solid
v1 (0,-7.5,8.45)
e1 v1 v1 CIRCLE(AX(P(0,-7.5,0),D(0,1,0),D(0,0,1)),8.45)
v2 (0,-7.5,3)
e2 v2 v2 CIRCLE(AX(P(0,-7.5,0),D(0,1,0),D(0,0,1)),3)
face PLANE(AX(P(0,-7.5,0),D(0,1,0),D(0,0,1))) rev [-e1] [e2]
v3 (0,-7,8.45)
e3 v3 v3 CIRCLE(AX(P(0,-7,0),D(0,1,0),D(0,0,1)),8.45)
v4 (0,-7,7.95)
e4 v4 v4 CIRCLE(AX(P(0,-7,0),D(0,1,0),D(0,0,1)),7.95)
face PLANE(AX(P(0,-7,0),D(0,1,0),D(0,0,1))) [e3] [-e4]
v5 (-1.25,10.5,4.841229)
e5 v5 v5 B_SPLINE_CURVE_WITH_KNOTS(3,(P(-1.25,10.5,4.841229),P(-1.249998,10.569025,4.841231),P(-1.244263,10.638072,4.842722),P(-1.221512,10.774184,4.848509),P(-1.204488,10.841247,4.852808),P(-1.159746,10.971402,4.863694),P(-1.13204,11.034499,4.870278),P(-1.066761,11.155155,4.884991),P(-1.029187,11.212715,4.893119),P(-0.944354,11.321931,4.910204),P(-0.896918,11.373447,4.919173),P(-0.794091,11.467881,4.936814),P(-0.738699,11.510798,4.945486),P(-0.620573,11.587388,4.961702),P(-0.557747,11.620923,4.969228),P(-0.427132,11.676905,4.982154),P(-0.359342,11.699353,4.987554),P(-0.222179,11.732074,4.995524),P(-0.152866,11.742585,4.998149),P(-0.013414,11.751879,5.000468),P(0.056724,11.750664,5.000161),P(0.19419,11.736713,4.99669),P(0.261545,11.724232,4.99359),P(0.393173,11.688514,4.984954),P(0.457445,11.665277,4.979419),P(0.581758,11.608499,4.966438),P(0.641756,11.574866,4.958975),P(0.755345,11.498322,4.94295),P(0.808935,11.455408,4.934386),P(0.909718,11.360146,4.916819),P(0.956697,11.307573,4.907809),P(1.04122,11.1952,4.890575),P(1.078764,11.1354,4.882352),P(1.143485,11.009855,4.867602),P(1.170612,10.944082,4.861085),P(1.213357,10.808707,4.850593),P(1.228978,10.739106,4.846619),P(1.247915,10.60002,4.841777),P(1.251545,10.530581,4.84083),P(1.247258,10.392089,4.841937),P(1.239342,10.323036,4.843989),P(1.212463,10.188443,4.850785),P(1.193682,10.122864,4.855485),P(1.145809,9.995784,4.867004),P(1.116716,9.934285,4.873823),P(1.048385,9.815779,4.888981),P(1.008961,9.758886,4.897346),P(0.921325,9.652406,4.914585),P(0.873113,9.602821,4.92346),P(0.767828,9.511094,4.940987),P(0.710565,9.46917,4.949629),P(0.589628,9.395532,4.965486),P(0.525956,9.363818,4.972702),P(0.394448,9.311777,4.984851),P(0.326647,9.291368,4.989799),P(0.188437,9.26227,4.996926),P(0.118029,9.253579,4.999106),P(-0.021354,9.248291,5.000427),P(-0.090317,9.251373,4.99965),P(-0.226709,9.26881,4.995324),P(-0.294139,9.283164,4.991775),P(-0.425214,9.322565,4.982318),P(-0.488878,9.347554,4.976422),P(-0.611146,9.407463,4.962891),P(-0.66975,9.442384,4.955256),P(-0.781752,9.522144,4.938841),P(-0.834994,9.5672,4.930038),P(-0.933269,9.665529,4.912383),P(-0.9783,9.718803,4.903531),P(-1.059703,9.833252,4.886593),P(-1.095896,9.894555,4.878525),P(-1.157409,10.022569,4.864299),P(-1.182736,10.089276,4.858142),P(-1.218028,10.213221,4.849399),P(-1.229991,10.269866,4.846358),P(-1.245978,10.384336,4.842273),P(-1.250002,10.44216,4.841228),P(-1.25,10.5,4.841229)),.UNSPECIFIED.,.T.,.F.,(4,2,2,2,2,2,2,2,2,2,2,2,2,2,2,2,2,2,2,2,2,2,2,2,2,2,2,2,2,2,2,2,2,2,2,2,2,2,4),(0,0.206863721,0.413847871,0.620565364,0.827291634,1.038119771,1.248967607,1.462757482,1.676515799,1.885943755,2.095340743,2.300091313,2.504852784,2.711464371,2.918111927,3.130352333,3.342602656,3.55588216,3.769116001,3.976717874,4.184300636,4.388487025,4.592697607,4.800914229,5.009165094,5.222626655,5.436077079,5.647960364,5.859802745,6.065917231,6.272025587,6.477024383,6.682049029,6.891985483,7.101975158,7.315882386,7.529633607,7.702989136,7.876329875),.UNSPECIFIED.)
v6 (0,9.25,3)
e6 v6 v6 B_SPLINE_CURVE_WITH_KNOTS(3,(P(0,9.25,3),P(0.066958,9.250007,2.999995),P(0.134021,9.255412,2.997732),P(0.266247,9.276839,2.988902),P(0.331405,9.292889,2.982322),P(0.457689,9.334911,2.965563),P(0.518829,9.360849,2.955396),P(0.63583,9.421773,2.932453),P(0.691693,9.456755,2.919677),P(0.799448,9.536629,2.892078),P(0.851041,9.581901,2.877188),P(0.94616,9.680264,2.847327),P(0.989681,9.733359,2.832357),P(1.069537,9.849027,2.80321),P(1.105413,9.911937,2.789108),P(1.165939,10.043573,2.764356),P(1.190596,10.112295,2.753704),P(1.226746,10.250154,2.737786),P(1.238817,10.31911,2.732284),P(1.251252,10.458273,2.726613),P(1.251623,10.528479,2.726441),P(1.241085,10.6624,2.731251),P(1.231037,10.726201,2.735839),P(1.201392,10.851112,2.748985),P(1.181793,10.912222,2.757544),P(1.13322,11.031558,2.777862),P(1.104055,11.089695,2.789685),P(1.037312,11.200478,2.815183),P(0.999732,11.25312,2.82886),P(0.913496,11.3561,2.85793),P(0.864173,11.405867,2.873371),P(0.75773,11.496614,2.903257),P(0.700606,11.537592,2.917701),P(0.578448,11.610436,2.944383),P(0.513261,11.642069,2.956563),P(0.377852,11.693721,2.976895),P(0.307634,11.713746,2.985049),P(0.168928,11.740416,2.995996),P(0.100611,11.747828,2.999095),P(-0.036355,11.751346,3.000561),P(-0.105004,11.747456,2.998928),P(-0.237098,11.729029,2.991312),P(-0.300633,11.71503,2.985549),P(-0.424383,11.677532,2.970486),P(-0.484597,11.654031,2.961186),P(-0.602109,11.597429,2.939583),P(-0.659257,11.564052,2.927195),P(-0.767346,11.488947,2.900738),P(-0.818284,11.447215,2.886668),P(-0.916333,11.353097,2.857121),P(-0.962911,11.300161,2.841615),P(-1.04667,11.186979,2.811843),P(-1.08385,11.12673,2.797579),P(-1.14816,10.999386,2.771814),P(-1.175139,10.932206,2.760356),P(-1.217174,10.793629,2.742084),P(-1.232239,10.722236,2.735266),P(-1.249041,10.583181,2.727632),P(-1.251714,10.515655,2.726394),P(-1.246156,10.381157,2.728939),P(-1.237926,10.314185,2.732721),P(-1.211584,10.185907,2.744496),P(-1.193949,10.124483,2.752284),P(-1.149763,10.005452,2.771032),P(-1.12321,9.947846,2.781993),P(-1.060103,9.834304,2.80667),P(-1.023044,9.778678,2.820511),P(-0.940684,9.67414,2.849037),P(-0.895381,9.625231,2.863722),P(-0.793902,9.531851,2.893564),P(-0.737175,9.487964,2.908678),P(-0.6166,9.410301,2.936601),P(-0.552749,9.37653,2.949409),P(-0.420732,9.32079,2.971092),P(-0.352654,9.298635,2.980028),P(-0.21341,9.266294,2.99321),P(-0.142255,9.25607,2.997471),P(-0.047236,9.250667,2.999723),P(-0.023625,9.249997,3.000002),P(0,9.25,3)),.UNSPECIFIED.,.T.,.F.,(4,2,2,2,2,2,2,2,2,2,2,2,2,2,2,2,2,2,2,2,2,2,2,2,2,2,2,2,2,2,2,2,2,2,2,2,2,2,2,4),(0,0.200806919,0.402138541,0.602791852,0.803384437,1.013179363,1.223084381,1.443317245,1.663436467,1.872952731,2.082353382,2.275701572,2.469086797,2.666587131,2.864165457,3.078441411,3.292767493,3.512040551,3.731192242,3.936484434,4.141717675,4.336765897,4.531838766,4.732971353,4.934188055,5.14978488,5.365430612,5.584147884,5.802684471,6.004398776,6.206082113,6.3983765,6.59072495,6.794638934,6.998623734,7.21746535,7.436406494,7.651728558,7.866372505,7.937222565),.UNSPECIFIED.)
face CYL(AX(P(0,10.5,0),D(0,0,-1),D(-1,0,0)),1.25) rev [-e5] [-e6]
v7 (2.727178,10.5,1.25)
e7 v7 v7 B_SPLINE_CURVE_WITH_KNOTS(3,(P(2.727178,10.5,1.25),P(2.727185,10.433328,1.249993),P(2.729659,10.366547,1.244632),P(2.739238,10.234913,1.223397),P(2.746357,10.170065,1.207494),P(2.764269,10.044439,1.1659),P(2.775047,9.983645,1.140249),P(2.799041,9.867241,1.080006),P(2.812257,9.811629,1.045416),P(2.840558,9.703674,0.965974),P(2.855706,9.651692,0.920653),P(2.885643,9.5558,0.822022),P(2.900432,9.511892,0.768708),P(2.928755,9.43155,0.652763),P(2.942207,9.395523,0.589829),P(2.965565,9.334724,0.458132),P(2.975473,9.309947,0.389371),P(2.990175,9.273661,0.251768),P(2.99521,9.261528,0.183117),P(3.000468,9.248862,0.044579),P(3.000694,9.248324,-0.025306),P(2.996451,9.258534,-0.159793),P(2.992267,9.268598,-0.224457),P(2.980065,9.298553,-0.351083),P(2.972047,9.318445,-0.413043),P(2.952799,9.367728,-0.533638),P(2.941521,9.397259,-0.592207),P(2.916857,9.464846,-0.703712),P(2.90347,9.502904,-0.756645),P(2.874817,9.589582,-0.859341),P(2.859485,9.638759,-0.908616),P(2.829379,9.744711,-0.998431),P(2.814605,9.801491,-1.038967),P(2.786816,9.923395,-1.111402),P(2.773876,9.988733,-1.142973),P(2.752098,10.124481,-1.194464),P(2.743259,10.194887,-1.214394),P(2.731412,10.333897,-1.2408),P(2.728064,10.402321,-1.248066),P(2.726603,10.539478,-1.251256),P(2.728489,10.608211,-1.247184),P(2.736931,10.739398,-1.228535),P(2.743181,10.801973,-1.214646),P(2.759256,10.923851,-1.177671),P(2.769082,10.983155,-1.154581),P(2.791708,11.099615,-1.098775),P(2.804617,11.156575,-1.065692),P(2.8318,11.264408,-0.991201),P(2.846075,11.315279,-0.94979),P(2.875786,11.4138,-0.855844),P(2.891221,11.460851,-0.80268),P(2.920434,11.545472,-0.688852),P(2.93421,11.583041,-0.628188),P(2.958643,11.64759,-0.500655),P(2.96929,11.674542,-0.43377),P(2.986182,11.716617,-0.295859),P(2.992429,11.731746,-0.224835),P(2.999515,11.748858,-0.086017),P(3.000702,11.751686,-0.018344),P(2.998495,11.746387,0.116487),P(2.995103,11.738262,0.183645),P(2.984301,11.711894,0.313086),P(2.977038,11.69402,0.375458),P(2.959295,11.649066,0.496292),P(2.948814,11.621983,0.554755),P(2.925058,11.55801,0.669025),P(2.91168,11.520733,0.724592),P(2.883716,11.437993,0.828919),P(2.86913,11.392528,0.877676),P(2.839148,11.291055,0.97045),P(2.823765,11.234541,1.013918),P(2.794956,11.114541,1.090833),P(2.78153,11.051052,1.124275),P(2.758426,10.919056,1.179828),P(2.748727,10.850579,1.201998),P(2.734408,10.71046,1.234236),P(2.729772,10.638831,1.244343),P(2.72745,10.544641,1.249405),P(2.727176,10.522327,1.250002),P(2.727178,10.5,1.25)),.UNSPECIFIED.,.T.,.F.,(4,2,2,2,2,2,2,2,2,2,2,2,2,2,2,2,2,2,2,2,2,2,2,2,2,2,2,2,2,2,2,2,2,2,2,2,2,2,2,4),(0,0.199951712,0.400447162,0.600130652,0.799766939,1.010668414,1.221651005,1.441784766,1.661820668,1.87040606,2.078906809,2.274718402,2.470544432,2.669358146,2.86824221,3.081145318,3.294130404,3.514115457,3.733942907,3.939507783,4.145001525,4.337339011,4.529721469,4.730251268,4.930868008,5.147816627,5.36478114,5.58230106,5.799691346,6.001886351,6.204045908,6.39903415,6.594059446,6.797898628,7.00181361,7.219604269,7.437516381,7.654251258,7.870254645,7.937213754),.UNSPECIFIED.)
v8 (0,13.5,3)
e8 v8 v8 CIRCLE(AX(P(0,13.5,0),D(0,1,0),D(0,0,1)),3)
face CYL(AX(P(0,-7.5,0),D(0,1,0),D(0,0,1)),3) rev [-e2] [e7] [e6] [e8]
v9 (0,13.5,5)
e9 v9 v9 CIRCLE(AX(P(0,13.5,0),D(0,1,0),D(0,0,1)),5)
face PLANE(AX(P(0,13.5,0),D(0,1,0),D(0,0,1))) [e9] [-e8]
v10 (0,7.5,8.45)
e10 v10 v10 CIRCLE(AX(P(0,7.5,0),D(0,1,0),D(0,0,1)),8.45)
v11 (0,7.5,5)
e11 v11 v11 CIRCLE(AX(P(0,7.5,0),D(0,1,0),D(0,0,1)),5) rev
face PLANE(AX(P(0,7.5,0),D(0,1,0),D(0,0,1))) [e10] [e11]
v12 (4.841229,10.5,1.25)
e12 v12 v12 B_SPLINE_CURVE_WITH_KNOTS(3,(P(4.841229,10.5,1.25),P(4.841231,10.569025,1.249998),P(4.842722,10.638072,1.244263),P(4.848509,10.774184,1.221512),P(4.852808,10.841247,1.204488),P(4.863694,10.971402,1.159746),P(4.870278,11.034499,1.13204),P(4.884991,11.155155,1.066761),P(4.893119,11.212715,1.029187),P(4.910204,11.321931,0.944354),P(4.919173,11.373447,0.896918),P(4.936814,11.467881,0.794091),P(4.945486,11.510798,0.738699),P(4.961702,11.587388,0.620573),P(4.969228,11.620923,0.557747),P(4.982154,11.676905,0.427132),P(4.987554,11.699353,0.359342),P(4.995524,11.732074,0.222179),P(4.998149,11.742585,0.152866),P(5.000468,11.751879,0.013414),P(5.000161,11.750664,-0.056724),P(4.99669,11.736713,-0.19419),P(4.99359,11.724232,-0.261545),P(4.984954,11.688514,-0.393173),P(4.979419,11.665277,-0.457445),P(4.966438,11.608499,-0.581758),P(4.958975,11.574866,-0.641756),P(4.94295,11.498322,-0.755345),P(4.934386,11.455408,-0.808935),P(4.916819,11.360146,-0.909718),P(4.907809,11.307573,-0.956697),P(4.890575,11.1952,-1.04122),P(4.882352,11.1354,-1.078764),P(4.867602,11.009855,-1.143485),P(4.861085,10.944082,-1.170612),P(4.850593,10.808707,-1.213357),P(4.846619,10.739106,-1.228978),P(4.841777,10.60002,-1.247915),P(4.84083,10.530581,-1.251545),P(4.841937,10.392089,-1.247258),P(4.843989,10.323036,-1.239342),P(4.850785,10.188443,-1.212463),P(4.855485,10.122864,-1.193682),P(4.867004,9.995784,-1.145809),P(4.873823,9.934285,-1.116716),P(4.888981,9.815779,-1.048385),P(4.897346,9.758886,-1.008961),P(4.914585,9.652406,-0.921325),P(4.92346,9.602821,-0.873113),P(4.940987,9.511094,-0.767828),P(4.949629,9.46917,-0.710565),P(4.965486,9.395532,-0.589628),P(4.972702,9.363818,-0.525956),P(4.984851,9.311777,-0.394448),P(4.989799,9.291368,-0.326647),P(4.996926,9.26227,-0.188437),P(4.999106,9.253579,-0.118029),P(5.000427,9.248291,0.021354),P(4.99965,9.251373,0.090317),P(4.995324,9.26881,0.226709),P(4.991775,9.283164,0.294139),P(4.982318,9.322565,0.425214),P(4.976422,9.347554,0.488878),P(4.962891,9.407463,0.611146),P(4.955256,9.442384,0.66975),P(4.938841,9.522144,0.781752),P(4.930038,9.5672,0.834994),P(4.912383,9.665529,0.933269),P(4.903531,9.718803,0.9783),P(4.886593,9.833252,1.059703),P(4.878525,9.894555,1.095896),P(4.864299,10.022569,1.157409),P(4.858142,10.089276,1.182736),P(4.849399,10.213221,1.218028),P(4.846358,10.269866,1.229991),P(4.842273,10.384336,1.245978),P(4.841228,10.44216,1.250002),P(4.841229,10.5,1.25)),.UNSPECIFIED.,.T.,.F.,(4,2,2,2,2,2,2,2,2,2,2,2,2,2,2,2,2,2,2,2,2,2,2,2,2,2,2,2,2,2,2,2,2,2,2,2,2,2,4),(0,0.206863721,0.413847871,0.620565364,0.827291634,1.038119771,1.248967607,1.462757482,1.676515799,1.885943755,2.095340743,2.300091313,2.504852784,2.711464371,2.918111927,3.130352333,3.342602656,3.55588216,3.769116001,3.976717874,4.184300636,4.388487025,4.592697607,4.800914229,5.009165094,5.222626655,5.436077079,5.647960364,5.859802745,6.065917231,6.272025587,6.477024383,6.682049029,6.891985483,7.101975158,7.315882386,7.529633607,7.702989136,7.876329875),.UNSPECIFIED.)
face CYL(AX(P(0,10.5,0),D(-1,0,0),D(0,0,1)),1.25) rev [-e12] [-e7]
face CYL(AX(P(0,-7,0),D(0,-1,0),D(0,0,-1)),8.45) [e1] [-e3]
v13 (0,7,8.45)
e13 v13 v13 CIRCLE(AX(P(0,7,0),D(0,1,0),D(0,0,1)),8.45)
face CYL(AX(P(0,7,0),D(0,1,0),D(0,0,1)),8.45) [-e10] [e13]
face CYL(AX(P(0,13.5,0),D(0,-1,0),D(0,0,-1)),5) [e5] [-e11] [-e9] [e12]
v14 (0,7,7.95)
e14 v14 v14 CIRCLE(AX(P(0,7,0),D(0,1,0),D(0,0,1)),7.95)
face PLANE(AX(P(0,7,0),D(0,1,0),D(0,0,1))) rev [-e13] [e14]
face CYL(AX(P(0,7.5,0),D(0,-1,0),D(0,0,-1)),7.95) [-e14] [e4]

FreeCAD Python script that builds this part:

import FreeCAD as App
import Part
import Sketcher
Q = App.Units.Quantity


def add_polygon(sketch, points):
    """Adds a closed chain of lines whose ends are joined by coincident constraints."""
    first, n = sketch.GeometryCount, len(points)
    for a, b in zip(points, points[1:] + points[:1]):
        sketch.addGeometry(Part.LineSegment(App.Vector(*a, 0), App.Vector(*b, 0)), False)
    for i in range(n):
        sketch.addConstraint(Sketcher.Constraint("Coincident", first + i, 2, first + (i + 1) % n, 1))

doc = App.newDocument("Part")
body = doc.addObject("PartDesign::Body", "Body")

sketch1 = body.newObject("Sketcher::SketchObject", "Sketch")
sketch1.AttachmentSupport = (doc.getObject("XZ_Plane"), [""])
sketch1.MapMode = "FlatFace"
sketch1.addGeometry(Part.Circle(App.Vector(0, 0, 0), App.Vector(0, 0, 1), 8), False)
sketch1.addConstraint(Sketcher.Constraint("Coincident", 0, 3, -1, 1))
sketch1.addConstraint(Sketcher.Constraint("Diameter", 0, Q("15.9 mm")))
pad1 = body.newObject("PartDesign::Pad", "Pad")
pad1.Profile = sketch1
pad1.Length = 15
pad1.Midplane = True

sketch2 = body.newObject("Sketcher::SketchObject", "Sketch001")
sketch2.AttachmentSupport = (doc.getObject("XZ_Plane"), [""])
sketch2.MapMode = "FlatFace"
sketch2.AttachmentOffset = App.Placement(App.Vector(0, 0, -7.5), App.Rotation())
sketch2.addGeometry(Part.Circle(App.Vector(0, 0, 0), App.Vector(0, 0, 1), 8), False)
sketch2.addConstraint(Sketcher.Constraint("Coincident", 0, 3, -1, 1))
sketch2.addConstraint(Sketcher.Constraint("Diameter", 0, Q("16.9 mm")))
pad2 = body.newObject("PartDesign::Pad", "Pad001")
pad2.Profile = sketch2
pad2.Length = 0.5

sketch3 = body.newObject("Sketcher::SketchObject", "Sketch002")
sketch3.AttachmentSupport = (doc.getObject("XZ_Plane"), [""])
sketch3.MapMode = "FlatFace"
sketch3.AttachmentOffset = App.Placement(App.Vector(0, 0, 7), App.Rotation())
sketch3.addGeometry(Part.Circle(App.Vector(0, 0, 0), App.Vector(0, 0, 1), 8), False)
sketch3.addConstraint(Sketcher.Constraint("Coincident", 0, 3, -1, 1))
sketch3.addConstraint(Sketcher.Constraint("Diameter", 0, Q("16.9 mm")))
pad3 = body.newObject("PartDesign::Pad", "Pad002")
pad3.Profile = sketch3
pad3.Length = 0.5

sketch4 = body.newObject("Sketcher::SketchObject", "Sketch003")
sketch4.AttachmentSupport = (doc.getObject("XZ_Plane"), [""])
sketch4.MapMode = "FlatFace"
sketch4.AttachmentOffset = App.Placement(App.Vector(0, 0, 7.5), App.Rotation())
sketch4.addGeometry(Part.Circle(App.Vector(0, 0, 0), App.Vector(0, 0, 1), 5), False)
sketch4.addConstraint(Sketcher.Constraint("Coincident", 0, 3, -1, 1))
sketch4.addConstraint(Sketcher.Constraint("Diameter", 0, Q("10 mm")))
pad4 = body.newObject("PartDesign::Pad", "Pad003")
pad4.Profile = sketch4
pad4.Length = 21
pad4.Reversed = True

sketch5 = body.newObject("Sketcher::SketchObject", "Sketch004")
sketch5.AttachmentSupport = (doc.getObject("XZ_Plane"), [""])
sketch5.MapMode = "FlatFace"
sketch5.AttachmentOffset = App.Placement(App.Vector(0, 0, 7), App.Rotation())
sketch5.addGeometry(Part.Circle(App.Vector(0, 0, 0), App.Vector(0, 0, 1), 3), False)
sketch5.addConstraint(Sketcher.Constraint("Coincident", 0, 3, -1, 1))
sketch5.addConstraint(Sketcher.Constraint("Diameter", 0, Q("6 mm")))
pocket1 = body.newObject("PartDesign::Pocket", "Pocket")
pocket1.Profile = sketch5
pocket1.Type = "ThroughAll"
pocket1.Midplane = True

sketch6 = body.newObject("Sketcher::SketchObject", "Sketch005")
sketch6.AttachmentSupport = (doc.getObject("XZ_Plane"), [""])
sketch6.MapMode = "FlatFace"
sketch6.AttachmentOffset = App.Placement(App.Vector(0, 0, -10.5), App.Rotation())
add_polygon(sketch6, [(5, 0), (0, 0), (0, 1.2), (5, 1.2)])
sketch6.addConstraint(Sketcher.Constraint("Horizontal", 0))
sketch6.addConstraint(Sketcher.Constraint("Vertical", 1))
sketch6.addConstraint(Sketcher.Constraint("Horizontal", 2))
sketch6.addConstraint(Sketcher.Constraint("Vertical", 3))
sketch6.addConstraint(Sketcher.Constraint("Coincident", 0, 2, -1, 1))
sketch6.addConstraint(Sketcher.Constraint("DistanceX", 0, 2, 0, 1, Q("5 mm")))
sketch6.addConstraint(Sketcher.Constraint("DistanceY", 1, 1, 1, 2, Q("1.25 mm")))
groove = body.newObject("PartDesign::Groove", "Groove")
groove.Profile = sketch6
groove.ReferenceAxis = (sketch6, ["H_Axis"])
groove.Angle = 360

sketch7 = body.newObject("Sketcher::SketchObject", "Sketch006")
sketch7.AttachmentSupport = (doc.getObject("YZ_Plane"), [""])
sketch7.MapMode = "FlatFace"
add_polygon(sketch7, [(10.5, 8.4), (10.5, 0), (11.8, 0), (11.8, 8.4)])
sketch7.addGeometry(Part.LineSegment(App.Vector(10.5, 0, 0), App.Vector(10.5, 8.4, 0)), True)
sketch7.addConstraint(Sketcher.Constraint("Vertical", 0))
sketch7.addConstraint(Sketcher.Constraint("Horizontal", 1))
sketch7.addConstraint(Sketcher.Constraint("Vertical", 2))
sketch7.addConstraint(Sketcher.Constraint("Horizontal", 3))
sketch7.addConstraint(Sketcher.Constraint("Vertical", 4))
sketch7.addConstraint(Sketcher.Constraint("Coincident", 4, 1, 0, 2))
sketch7.addConstraint(Sketcher.Constraint("PointOnObject", 0, 2, -1))
sketch7.addConstraint(Sketcher.Constraint("Horizontal", 2, 2, 4, 2))
sketch7.addConstraint(Sketcher.Constraint("DistanceX", 1, 1, 1, 2, Q("1.25 mm")))
sketch7.addConstraint(Sketcher.Constraint("DistanceY", 0, 2, 0, 1, Q("8.45 mm")))
sketch7.addConstraint(Sketcher.Constraint("DistanceX", -1, 1, 0, 2, Q("10.5 mm")))
groove2 = body.newObject("PartDesign::Groove", "Groove001")
groove2.Profile = sketch7
groove2.ReferenceAxis = (sketch7, ["Axis0"])
groove2.Angle = 360

doc.recompute()
